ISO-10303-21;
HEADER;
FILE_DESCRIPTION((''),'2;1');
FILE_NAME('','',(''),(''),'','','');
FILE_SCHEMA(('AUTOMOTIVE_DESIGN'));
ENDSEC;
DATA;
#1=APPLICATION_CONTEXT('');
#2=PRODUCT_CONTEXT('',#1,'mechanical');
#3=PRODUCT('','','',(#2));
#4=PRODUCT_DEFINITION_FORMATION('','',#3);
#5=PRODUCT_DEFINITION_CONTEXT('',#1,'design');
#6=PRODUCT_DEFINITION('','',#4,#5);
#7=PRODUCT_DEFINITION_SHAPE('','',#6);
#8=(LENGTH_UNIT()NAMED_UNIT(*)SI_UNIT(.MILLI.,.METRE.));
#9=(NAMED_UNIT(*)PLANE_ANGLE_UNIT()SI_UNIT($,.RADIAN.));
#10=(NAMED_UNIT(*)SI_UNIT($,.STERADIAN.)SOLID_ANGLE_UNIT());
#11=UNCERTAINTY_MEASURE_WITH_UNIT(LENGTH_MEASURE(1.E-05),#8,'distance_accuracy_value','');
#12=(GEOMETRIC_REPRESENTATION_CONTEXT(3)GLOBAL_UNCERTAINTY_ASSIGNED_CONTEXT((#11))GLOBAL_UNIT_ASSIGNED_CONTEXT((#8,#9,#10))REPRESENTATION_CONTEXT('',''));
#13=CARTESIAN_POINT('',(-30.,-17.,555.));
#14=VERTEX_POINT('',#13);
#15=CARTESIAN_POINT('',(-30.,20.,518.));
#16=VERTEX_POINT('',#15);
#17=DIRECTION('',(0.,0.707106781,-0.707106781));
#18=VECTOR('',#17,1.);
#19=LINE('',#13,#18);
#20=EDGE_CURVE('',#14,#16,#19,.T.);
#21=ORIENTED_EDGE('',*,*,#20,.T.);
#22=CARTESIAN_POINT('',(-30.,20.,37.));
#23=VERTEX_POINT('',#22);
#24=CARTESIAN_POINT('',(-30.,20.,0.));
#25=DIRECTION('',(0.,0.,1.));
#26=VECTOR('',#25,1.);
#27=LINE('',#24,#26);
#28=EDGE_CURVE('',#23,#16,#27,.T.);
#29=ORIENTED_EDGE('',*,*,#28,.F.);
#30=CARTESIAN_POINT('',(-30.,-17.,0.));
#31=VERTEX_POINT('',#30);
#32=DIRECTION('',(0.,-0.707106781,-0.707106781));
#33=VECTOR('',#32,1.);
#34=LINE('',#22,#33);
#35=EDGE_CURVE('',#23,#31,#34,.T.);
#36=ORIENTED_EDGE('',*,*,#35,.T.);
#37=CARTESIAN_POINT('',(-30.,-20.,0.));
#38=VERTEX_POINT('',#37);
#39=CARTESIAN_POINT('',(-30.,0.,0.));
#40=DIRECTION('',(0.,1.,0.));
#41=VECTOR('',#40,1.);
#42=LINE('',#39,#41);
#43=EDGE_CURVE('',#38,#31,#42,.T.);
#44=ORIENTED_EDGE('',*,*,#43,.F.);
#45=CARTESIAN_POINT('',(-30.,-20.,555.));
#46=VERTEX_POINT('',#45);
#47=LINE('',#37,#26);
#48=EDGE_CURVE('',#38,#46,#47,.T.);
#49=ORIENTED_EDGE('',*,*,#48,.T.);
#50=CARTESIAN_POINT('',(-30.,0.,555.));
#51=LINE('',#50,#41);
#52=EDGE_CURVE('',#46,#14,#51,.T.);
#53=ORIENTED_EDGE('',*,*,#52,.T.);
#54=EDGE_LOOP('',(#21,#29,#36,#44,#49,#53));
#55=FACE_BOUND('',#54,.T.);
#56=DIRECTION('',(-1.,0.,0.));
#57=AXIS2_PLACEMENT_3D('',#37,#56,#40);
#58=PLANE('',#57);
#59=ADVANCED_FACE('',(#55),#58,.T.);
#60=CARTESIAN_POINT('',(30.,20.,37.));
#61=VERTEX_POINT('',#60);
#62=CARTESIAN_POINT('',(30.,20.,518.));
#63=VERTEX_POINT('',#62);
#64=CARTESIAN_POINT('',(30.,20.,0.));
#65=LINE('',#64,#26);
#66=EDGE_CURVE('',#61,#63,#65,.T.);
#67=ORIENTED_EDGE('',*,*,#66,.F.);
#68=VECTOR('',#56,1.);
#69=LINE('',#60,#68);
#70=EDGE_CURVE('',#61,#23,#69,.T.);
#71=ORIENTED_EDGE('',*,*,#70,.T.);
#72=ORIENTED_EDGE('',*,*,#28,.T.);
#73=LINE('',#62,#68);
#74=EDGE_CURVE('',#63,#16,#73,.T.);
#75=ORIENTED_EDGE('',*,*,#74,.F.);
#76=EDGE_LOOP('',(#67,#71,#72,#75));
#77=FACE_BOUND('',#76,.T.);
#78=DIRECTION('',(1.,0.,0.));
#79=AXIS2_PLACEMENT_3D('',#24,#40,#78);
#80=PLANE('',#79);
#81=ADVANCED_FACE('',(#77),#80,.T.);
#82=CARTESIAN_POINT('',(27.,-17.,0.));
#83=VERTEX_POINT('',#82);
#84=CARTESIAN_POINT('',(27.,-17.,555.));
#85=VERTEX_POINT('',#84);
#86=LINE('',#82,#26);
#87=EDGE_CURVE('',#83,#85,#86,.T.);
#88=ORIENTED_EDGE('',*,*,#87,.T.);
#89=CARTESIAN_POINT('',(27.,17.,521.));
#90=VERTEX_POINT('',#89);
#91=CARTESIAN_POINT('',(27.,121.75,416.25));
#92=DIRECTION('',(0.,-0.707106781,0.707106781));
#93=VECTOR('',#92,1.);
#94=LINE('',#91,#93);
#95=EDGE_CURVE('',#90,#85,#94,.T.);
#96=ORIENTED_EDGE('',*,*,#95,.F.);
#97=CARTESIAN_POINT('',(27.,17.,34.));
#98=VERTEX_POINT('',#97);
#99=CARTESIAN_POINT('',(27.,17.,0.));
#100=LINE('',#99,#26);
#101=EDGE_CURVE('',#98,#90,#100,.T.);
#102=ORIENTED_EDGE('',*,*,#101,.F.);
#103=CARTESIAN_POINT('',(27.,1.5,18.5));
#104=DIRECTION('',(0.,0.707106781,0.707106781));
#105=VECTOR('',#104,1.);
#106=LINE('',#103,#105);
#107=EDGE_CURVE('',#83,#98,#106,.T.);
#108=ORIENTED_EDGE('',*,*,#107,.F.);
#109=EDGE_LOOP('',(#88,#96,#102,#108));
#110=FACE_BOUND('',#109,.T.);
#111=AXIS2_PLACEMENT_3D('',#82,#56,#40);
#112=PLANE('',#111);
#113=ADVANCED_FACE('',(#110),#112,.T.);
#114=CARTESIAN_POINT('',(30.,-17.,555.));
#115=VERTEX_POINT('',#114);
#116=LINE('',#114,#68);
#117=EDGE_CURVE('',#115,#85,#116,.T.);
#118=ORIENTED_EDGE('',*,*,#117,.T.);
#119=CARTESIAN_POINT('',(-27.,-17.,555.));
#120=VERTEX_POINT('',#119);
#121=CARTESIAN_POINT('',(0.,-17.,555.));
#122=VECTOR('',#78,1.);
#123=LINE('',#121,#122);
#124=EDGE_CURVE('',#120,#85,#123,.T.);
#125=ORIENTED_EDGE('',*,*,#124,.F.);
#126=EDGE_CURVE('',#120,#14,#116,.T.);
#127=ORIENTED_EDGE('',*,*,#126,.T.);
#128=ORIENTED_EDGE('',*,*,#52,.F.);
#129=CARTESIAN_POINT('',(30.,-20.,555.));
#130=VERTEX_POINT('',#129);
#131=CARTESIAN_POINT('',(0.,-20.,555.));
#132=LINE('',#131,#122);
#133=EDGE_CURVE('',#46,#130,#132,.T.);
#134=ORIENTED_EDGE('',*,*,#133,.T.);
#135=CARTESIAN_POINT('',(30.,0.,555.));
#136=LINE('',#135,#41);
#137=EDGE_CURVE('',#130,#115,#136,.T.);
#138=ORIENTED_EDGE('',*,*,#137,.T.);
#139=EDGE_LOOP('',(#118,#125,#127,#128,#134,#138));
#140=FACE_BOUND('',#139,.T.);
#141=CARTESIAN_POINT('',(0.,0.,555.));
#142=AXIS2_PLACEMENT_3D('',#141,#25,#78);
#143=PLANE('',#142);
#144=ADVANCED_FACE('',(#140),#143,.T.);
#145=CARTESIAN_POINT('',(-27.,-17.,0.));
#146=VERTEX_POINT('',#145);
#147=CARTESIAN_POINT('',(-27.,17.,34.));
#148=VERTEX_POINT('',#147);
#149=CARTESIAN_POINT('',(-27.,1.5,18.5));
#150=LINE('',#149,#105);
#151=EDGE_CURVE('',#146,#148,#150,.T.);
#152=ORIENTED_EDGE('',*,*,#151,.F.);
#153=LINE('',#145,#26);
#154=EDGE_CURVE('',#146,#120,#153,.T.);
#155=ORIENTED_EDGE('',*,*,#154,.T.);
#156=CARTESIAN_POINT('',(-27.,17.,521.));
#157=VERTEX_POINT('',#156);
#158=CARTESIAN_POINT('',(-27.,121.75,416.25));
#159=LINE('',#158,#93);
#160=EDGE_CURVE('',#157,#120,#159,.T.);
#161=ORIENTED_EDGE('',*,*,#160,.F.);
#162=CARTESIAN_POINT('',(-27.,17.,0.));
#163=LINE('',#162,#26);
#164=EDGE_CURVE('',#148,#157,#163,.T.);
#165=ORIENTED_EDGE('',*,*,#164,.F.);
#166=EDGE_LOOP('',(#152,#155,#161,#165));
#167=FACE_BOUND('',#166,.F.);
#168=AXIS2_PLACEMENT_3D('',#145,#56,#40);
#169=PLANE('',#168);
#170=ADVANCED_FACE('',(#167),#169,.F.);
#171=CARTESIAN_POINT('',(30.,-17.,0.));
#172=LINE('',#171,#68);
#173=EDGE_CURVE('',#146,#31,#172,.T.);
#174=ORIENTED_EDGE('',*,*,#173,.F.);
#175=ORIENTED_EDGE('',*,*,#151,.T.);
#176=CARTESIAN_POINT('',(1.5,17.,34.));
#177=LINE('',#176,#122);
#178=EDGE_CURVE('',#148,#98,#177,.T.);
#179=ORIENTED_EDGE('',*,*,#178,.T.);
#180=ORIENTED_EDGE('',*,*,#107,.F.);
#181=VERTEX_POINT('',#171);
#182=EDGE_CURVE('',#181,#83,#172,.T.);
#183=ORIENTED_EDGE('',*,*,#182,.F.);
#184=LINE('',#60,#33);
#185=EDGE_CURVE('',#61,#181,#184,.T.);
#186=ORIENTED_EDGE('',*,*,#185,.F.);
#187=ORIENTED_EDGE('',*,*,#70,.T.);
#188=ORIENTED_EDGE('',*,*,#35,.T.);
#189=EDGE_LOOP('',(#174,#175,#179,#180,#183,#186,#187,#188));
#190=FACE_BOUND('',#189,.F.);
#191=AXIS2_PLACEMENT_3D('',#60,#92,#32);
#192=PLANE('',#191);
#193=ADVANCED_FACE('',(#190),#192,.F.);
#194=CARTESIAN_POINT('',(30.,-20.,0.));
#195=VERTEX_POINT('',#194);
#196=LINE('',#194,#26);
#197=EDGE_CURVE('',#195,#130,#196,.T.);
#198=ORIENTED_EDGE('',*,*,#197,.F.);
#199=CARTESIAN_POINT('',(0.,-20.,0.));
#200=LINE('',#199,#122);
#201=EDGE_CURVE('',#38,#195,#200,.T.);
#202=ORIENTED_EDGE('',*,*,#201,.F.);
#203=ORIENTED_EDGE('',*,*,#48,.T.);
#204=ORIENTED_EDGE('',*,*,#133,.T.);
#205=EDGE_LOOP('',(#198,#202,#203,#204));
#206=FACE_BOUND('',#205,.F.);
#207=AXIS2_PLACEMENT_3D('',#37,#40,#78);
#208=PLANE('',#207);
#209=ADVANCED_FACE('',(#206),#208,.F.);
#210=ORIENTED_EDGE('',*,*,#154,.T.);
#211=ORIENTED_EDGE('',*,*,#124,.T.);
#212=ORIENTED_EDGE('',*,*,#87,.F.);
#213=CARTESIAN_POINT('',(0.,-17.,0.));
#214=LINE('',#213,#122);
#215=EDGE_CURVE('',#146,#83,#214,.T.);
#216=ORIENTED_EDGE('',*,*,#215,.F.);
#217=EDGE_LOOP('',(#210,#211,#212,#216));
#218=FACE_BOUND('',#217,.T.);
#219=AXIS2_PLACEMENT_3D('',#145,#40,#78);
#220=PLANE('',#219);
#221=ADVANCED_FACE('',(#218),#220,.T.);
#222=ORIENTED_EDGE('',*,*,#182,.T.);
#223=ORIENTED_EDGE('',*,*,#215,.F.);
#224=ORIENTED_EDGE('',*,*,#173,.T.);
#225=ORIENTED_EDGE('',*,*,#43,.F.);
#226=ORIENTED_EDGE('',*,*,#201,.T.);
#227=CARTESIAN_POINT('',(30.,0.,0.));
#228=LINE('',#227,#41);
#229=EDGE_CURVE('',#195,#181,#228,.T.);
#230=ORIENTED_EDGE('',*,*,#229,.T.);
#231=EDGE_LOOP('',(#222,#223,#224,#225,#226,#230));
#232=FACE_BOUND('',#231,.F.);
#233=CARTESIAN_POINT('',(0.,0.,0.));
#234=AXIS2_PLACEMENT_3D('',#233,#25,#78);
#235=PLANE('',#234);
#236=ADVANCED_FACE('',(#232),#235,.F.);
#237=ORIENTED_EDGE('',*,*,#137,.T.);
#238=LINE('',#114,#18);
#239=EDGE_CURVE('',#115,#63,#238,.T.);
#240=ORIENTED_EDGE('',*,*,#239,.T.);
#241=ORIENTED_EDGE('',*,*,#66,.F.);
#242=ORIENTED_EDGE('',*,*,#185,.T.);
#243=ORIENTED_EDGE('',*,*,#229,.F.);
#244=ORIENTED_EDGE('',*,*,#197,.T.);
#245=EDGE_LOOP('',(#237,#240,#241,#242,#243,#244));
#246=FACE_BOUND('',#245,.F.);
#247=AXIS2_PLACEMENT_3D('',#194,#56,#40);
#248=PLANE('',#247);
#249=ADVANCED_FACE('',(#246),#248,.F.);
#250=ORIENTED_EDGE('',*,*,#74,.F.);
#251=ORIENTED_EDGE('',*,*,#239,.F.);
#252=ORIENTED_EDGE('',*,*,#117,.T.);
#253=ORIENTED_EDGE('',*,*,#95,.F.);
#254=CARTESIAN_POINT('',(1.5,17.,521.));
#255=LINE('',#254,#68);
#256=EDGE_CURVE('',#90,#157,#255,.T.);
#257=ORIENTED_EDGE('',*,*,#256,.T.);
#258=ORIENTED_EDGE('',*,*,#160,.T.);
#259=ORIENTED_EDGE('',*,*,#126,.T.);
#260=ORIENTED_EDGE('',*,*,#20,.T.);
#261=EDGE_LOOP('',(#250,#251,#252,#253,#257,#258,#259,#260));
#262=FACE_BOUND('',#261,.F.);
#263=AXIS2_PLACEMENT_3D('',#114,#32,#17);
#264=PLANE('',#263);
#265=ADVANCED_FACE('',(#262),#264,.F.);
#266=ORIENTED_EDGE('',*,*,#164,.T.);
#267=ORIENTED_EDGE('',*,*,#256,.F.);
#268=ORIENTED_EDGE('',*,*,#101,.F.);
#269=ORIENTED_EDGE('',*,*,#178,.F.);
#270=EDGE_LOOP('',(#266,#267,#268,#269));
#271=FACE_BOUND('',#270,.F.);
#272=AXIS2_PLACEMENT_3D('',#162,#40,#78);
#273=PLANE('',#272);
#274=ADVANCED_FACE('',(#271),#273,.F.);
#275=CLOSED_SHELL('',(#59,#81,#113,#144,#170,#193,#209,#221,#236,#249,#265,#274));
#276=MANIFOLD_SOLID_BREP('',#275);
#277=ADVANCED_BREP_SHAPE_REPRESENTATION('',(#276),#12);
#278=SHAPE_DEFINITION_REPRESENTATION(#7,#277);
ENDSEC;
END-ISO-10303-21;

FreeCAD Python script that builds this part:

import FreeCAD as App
import Part
import Sketcher
Q = App.Units.Quantity


def add_polygon(sketch, points):
    """Adds a closed chain of lines whose ends are joined by coincident constraints."""
    first, n = sketch.GeometryCount, len(points)
    for a, b in zip(points, points[1:] + points[:1]):
        sketch.addGeometry(Part.LineSegment(App.Vector(*a, 0), App.Vector(*b, 0)), False)
    for i in range(n):
        sketch.addConstraint(Sketcher.Constraint("Coincident", first + i, 2, first + (i + 1) % n, 1))

doc = App.newDocument("Part")
params = doc.addObject("Spreadsheet::Sheet", "Params")
for row, (alias, value) in enumerate([
    ("sketch1_width", "60 mm"),
    ("sketch1_width2", "54 mm"),
    ("sketch1_height", "40 mm"),
    ("sketch1_height2", "34 mm"),
    ("pad1_length", "555 mm"),
    ("sketch2_width", "37 mm"),
    ("pocket1_length", "60 mm"),
    ("sketch3_width", "37 mm"),
    ("pocket2_length", "60 mm"),
], start=1):
    params.set(f"A{row}", alias)
    params.set(f"B{row}", "=" + value)
    params.setAlias(f"B{row}", alias)

body = doc.addObject("PartDesign::Body", "Body")

# Sketch on XY plane
sketch1 = doc.addObject("Sketcher::SketchObject", "Sketch")
body.addObject(sketch1)
sketch1.AttachmentSupport = (doc.XY_Plane, [""])
sketch1.MapMode = "FlatFace"
add_polygon(sketch1, [(-30, 20), (-30, -20), (30, -20), (30, 20)])  # lines 0-3
add_polygon(sketch1, [(27, -17), (-27, -17), (-27, 17), (27, 17)])  # lines 4-7
sketch1.addConstraint(Sketcher.Constraint("Vertical", 0))
sketch1.addConstraint(Sketcher.Constraint("Horizontal", 1))
sketch1.addConstraint(Sketcher.Constraint("Vertical", 2))
sketch1.addConstraint(Sketcher.Constraint("Horizontal", 3))
sketch1.addConstraint(Sketcher.Constraint("Horizontal", 4))
sketch1.addConstraint(Sketcher.Constraint("Vertical", 5))
sketch1.addConstraint(Sketcher.Constraint("Horizontal", 6))
sketch1.addConstraint(Sketcher.Constraint("Vertical", 7))
sketch1.addConstraint(Sketcher.Constraint("Symmetric", 0, 2, 2, 2, -1, 1))
sketch1.addConstraint(Sketcher.Constraint("Symmetric", 4, 2, 6, 2, -1, 1))
sketch1.addConstraint(Sketcher.Constraint("DistanceX", 1, 1, 1, 2, Q("60 mm")))
sketch1.addConstraint(Sketcher.Constraint("DistanceX", 4, 2, 4, 1, Q("54 mm")))
sketch1.addConstraint(Sketcher.Constraint("DistanceY", 0, 2, 0, 1, Q("40 mm")))
sketch1.addConstraint(Sketcher.Constraint("DistanceY", 5, 1, 5, 2, Q("34 mm")))
sketch1.setExpression("Constraints[18]", "Params.sketch1_width")
sketch1.setExpression("Constraints[19]", "Params.sketch1_width2")
sketch1.setExpression("Constraints[20]", "Params.sketch1_height")
sketch1.setExpression("Constraints[21]", "Params.sketch1_height2")
pad1 = doc.addObject("PartDesign::Pad", "Pad")
body.addObject(pad1)
pad1.Profile = sketch1
pad1.setExpression("Length", "Params.pad1_length")

# Sketch on YZ plane
sketch2 = doc.addObject("Sketcher::SketchObject", "Sketch001")
body.addObject(sketch2)
sketch2.AttachmentSupport = (doc.YZ_Plane, [""])
sketch2.MapMode = "FlatFace"
sketch2.AttachmentOffset = App.Placement(App.Vector(0, 0, 30), App.Rotation())
add_polygon(sketch2, [(20, 555), (-17, 555), (20, 518)])  # lines 0-2
add_polygon(sketch2, [(-17, 0), (20, 0), (20, 37)])  # lines 3-5
sketch2.addConstraint(Sketcher.Constraint("Horizontal", 0))
sketch2.addConstraint(Sketcher.Constraint("Vertical", 2))
sketch2.addConstraint(Sketcher.Constraint("Horizontal", 3))
sketch2.addConstraint(Sketcher.Constraint("Vertical", 4))
sketch2.addConstraint(Sketcher.Constraint("PointOnObject", 3, 2, -1))
sketch2.addConstraint(Sketcher.Constraint("Perpendicular", 1, 5))
sketch2.addConstraint(Sketcher.Constraint("Vertical", 2, 2, 3, 2))
sketch2.addConstraint(Sketcher.Constraint("Vertical", 0, 2, 5, 2))
sketch2.addConstraint(Sketcher.Constraint("Equal", 3, 2))
sketch2.addConstraint(Sketcher.Constraint("DistanceX", 0, 2, 0, 1, Q("37 mm")))
sketch2.addConstraint(Sketcher.Constraint("DistanceX", 0, 2, -1, 1, Q("17 mm")))
sketch2.addConstraint(Sketcher.Constraint("DistanceY", -1, 1, 0, 2, Q("555 mm")))
sketch2.setExpression("Constraints[15]", "Params.sketch2_width")
pocket1 = doc.addObject("PartDesign::Pocket", "Pocket")
body.addObject(pocket1)
pocket1.Profile = sketch2
pocket1.setExpression("Length", "Params.pocket1_length")

# Sketch on YZ plane
sketch3 = doc.addObject("Sketcher::SketchObject", "Sketch002")
body.addObject(sketch3)
sketch3.AttachmentSupport = (doc.YZ_Plane, [""])
sketch3.MapMode = "FlatFace"
sketch3.AttachmentOffset = App.Placement(App.Vector(0, 0, 30), App.Rotation())
add_polygon(sketch3, [(20, 0), (20, 37), (-17, 0)])  # lines 0-2
sketch3.addConstraint(Sketcher.Constraint("Vertical", 0))
sketch3.addConstraint(Sketcher.Constraint("Horizontal", 2))
sketch3.addConstraint(Sketcher.Constraint("PointOnObject", 1, 2, -1))
sketch3.addConstraint(Sketcher.Constraint("Equal", 2, 0))
sketch3.addConstraint(Sketcher.Constraint("DistanceX", 2, 1, 2, 2, Q("37 mm")))
sketch3.addConstraint(Sketcher.Constraint("DistanceX", -1, 1, 0, 2, Q("20 mm")))
sketch3.setExpression("Constraints[7]", "Params.sketch3_width")
pocket2 = doc.addObject("PartDesign::Pocket", "Pocket001")
body.addObject(pocket2)
pocket2.Profile = sketch3
pocket2.setExpression("Length", "Params.pocket2_length")

doc.recompute()
